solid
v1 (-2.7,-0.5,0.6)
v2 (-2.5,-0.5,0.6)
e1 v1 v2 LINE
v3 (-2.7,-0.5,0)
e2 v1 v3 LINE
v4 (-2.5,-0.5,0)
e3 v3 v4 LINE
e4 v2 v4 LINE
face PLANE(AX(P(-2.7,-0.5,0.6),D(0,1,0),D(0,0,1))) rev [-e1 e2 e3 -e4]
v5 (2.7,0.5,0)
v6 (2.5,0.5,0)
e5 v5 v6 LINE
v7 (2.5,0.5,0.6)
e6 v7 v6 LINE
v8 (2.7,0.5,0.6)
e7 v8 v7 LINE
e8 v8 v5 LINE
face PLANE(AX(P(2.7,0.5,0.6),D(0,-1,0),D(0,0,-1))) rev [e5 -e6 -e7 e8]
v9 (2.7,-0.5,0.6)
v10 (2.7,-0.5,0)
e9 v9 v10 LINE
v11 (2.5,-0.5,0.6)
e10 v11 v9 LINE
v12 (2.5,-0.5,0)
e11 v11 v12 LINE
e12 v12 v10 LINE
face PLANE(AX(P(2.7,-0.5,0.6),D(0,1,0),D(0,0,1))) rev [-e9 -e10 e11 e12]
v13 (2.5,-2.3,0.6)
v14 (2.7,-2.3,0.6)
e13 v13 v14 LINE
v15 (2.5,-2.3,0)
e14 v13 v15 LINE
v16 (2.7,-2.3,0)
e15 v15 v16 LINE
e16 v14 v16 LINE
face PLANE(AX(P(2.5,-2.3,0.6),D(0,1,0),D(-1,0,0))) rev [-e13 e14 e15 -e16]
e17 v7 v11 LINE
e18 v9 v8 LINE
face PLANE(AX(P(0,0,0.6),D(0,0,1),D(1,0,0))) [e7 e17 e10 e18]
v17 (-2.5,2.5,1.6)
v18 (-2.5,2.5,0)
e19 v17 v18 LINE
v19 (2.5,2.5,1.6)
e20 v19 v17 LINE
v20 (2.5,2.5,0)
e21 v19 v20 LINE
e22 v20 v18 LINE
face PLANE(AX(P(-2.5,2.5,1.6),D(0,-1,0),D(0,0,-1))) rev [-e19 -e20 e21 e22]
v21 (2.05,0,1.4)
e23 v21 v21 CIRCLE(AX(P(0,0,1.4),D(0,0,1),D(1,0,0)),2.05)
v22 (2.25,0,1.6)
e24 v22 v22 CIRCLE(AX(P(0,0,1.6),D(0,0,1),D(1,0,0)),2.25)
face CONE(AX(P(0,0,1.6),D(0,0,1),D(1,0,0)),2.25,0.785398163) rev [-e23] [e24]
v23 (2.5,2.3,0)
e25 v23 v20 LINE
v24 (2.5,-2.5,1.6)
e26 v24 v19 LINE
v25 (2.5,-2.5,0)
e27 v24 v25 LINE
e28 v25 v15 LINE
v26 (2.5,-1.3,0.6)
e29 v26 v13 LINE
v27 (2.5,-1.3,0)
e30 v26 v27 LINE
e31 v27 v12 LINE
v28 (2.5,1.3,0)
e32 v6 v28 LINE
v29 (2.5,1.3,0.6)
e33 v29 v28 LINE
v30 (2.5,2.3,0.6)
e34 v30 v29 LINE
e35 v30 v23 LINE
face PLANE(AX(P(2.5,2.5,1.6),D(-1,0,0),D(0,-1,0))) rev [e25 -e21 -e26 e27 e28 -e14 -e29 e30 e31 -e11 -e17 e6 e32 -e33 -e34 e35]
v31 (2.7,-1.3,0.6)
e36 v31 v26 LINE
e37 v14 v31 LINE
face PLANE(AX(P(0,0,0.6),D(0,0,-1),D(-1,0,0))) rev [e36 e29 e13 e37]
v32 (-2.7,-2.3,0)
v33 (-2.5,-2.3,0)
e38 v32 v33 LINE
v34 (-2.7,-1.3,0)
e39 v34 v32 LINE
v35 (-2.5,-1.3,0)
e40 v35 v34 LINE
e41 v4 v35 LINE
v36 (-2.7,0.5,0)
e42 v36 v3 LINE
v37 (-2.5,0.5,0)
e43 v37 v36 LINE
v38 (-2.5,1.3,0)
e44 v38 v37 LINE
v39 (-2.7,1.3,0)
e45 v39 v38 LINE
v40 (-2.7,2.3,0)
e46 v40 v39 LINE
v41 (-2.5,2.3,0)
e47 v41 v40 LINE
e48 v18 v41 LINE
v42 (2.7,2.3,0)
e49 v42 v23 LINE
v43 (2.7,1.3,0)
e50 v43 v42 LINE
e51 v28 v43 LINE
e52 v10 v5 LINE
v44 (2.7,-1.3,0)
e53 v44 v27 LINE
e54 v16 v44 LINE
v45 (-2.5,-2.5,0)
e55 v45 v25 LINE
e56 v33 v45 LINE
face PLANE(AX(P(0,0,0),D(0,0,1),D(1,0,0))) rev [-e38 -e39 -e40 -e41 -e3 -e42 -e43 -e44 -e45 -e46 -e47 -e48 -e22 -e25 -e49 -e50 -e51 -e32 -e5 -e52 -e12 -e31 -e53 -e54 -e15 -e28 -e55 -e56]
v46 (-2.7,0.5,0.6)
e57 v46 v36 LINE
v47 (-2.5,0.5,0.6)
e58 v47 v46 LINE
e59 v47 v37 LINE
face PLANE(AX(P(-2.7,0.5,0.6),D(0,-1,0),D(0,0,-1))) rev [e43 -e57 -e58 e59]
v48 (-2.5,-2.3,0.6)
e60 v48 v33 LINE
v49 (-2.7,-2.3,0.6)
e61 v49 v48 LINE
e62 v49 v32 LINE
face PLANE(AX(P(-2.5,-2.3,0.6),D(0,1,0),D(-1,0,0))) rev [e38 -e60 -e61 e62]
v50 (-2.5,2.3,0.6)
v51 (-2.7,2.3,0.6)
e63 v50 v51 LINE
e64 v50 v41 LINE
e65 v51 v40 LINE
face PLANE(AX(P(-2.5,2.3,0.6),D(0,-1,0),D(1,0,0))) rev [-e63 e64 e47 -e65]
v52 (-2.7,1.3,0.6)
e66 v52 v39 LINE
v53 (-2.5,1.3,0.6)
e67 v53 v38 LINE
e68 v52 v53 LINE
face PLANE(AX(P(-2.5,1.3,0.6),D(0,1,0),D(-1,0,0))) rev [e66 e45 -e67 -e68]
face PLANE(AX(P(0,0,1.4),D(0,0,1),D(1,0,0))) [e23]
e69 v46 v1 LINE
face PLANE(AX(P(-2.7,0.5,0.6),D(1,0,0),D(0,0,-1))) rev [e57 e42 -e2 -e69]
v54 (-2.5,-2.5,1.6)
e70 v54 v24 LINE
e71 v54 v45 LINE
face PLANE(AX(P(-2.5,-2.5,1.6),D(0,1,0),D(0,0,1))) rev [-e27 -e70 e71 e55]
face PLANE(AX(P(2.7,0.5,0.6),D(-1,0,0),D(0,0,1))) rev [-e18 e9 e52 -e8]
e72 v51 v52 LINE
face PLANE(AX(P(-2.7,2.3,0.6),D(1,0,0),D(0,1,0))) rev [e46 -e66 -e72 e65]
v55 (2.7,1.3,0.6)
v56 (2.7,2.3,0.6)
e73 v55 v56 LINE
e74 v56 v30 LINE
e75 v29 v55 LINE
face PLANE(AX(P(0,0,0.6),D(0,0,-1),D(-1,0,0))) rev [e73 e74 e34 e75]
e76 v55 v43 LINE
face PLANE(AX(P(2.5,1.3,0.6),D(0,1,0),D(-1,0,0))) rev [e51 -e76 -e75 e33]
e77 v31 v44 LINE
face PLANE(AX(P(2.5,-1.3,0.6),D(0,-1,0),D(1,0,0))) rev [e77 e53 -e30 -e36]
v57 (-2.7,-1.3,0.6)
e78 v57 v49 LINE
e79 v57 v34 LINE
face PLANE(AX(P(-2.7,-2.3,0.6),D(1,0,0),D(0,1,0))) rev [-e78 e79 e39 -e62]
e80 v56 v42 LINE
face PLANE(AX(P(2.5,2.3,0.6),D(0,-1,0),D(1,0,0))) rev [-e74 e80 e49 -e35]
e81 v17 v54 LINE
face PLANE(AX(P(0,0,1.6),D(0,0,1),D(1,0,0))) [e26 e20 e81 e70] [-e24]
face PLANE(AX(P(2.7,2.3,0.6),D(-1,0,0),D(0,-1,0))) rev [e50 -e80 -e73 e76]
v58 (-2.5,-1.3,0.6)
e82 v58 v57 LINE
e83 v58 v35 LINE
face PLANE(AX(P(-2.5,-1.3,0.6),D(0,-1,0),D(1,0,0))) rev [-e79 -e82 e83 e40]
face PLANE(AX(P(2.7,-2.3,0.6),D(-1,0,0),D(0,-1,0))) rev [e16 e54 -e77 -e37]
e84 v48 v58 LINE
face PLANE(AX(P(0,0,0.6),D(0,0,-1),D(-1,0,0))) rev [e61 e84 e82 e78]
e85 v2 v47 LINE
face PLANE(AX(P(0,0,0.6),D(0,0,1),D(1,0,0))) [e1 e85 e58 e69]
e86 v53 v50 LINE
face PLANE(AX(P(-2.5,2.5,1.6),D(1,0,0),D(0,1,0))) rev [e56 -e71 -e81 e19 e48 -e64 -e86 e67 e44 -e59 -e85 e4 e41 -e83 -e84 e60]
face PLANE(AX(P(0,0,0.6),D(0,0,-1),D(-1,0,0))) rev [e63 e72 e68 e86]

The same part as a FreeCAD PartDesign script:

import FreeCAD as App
import Part
import Sketcher

V = App.Vector
Q = App.Units.Quantity


def faces_at(feature, points):
    """Names of the faces that lie closest to the given points."""
    faces = feature.Shape.Faces
    near = lambda p: min(range(len(faces)), key=lambda i: faces[i].distToShape(Part.Vertex(*p))[0])
    return sorted({f"Face{near(p) + 1}" for p in points})

doc = App.newDocument("Part")
body = doc.addObject("PartDesign::Body", "Body")

# Sketch on XY plane
sketch1 = doc.addObject("Sketcher::SketchObject", "Sketch")
body.addObject(sketch1)
sketch1.AttachmentSupport = (doc.XY_Plane, [""])
sketch1.MapMode = "FlatFace"
sketch1.addGeometry([
    Part.LineSegment(V(-2, 2, 0), V(-2, -2, 0)),
    Part.LineSegment(V(-2, -2, 0), V(2, -2, 0)),
    Part.LineSegment(V(2, -2, 0), V(2, 2, 0)),
    Part.LineSegment(V(2, 2, 0), V(-2, 2, 0)),
], False)
sketch1.addConstraint([
    Sketcher.Constraint("Coincident", 0, 2, 1, 1),
    Sketcher.Constraint("Coincident", 1, 2, 2, 1),
    Sketcher.Constraint("Coincident", 2, 2, 3, 1),
    Sketcher.Constraint("Coincident", 3, 2, 0, 1),
    Sketcher.Constraint("Vertical", 0),
    Sketcher.Constraint("Horizontal", 1),
    Sketcher.Constraint("Vertical", 2),
    Sketcher.Constraint("Horizontal", 3),
    Sketcher.Constraint("Symmetric", 0, 2, 2, 2, -1, 1),
    Sketcher.Constraint("Equal", 3, 0),
    Sketcher.Constraint("DistanceX", 1, 1, 1, 2, Q("5 mm")),
])
pad1 = doc.addObject("PartDesign::Pad", "Pad")
body.addObject(pad1)
pad1.Profile = sketch1
pad1.Length = 1.6
body2 = doc.addObject("PartDesign::Body", "Body001")

# Sketch on XY plane
sketch2 = doc.addObject("Sketcher::SketchObject", "Sketch001")
body2.addObject(sketch2)
sketch2.AttachmentSupport = (doc.getObject("XY_Plane001"), [""])
sketch2.MapMode = "FlatFace"
sketch2.AttachmentOffset = App.Placement(V(0, 0, 1.6), App.Rotation())
sketch2.addGeometry(Part.Circle(V(0, 0, 0), V(0, 0, 1), 2.2), False)
sketch2.addConstraint([
    Sketcher.Constraint("Coincident", 0, 3, -1, 1),
    Sketcher.Constraint("Diameter", 0, Q("4.5 mm")),
])
pad2 = doc.addObject("PartDesign::Pad", "Pad001")
body2.addObject(pad2)
pad2.Profile = sketch2
pad2.Length = 0.2
pad2.Reversed = True
doc.recompute()

datumplane = doc.addObject("PartDesign::Plane", "DatumPlane")
body2.addObject(datumplane)
datumplane.AttachmentSupport = (doc.getObject("XY_Plane001"), [""])
datumplane.MapMode = "FlatFace"
datumplane.AttachmentOffset = App.Placement(V(0, 0, 1.6), App.Rotation())
draft = doc.addObject("PartDesign::Draft", "Draft")
body2.addObject(draft)
draft.Base = (pad2, faces_at(pad2, [(-2.25, 0, 1.5)]))
draft.NeutralPlane = (datumplane, [""])
draft.Angle = 45
draft.Reversed = True
doc.recompute()

boolean = doc.addObject("PartDesign::Boolean", "Boolean")
body.addObject(boolean)
boolean.Type = "Cut"
boolean.addObjects([body2])

# Sketch on XY plane
sketch3 = doc.addObject("Sketcher::SketchObject", "Sketch002")
body.addObject(sketch3)
sketch3.AttachmentSupport = (doc.XY_Plane, [""])
sketch3.MapMode = "FlatFace"
sketch3.addGeometry([
    Part.LineSegment(V(-2.7, 2.3, 0), V(-2.7, 1.3, 0)),  # 0
    Part.LineSegment(V(-2.7, 1.3, 0), V(-2.5, 1.3, 0)),  # 1
    Part.LineSegment(V(-2.5, 1.3, 0), V(-2.5, 2.3, 0)),  # 2
    Part.LineSegment(V(-2.5, 2.3, 0), V(-2.7, 2.3, 0)),  # 3
    Part.LineSegment(V(2.5, 2.3, 0), V(2.5, 1.3, 0)),  # 4
    Part.LineSegment(V(2.5, 1.3, 0), V(2.7, 1.3, 0)),  # 5
    Part.LineSegment(V(2.7, 1.3, 0), V(2.7, 2.3, 0)),  # 6
    Part.LineSegment(V(2.7, 2.3, 0), V(2.5, 2.3, 0)),  # 7
    Part.LineSegment(V(2.5, -1.3, 0), V(2.5, -2.3, 0)),  # 8
    Part.LineSegment(V(2.5, -2.3, 0), V(2.7, -2.3, 0)),  # 9
    Part.LineSegment(V(2.7, -2.3, 0), V(2.7, -1.3, 0)),  # 10
    Part.LineSegment(V(2.7, -1.3, 0), V(2.5, -1.3, 0)),  # 11
    Part.LineSegment(V(-2.7, -1.3, 0), V(-2.7, -2.3, 0)),  # 12
    Part.LineSegment(V(-2.7, -2.3, 0), V(-2.5, -2.3, 0)),  # 13
    Part.LineSegment(V(-2.5, -2.3, 0), V(-2.5, -1.3, 0)),  # 14
    Part.LineSegment(V(-2.5, -1.3, 0), V(-2.7, -1.3, 0)),  # 15
    Part.LineSegment(V(2.5, 0.5, 0), V(2.5, -0.5, 0)),  # 16
    Part.LineSegment(V(2.5, -0.5, 0), V(2.7, -0.5, 0)),  # 17
    Part.LineSegment(V(2.7, -0.5, 0), V(2.7, 0.5, 0)),  # 18
    Part.LineSegment(V(2.7, 0.5, 0), V(2.5, 0.5, 0)),  # 19
    Part.LineSegment(V(-2.7, 0.5, 0), V(-2.7, -0.5, 0)),  # 20
    Part.LineSegment(V(-2.7, -0.5, 0), V(-2.5, -0.5, 0)),  # 21
    Part.LineSegment(V(-2.5, -0.5, 0), V(-2.5, 0.5, 0)),  # 22
    Part.LineSegment(V(-2.5, 0.5, 0), V(-2.7, 0.5, 0)),  # 23
], False)
sketch3.addConstraint([
    Sketcher.Constraint("Coincident", 0, 2, 1, 1),
    Sketcher.Constraint("Coincident", 1, 2, 2, 1),
    Sketcher.Constraint("Coincident", 2, 2, 3, 1),
    Sketcher.Constraint("Coincident", 3, 2, 0, 1),
    Sketcher.Constraint("Coincident", 4, 2, 5, 1),
    Sketcher.Constraint("Coincident", 5, 2, 6, 1),
    Sketcher.Constraint("Coincident", 6, 2, 7, 1),
    Sketcher.Constraint("Coincident", 7, 2, 4, 1),
    Sketcher.Constraint("Coincident", 8, 2, 9, 1),
    Sketcher.Constraint("Coincident", 9, 2, 10, 1),
    Sketcher.Constraint("Coincident", 10, 2, 11, 1),
    Sketcher.Constraint("Coincident", 11, 2, 8, 1),
    Sketcher.Constraint("Coincident", 12, 2, 13, 1),
    Sketcher.Constraint("Coincident", 13, 2, 14, 1),
    Sketcher.Constraint("Coincident", 14, 2, 15, 1),
    Sketcher.Constraint("Coincident", 15, 2, 12, 1),
    Sketcher.Constraint("Coincident", 16, 2, 17, 1),
    Sketcher.Constraint("Coincident", 17, 2, 18, 1),
    Sketcher.Constraint("Coincident", 18, 2, 19, 1),
    Sketcher.Constraint("Coincident", 19, 2, 16, 1),
    Sketcher.Constraint("Coincident", 20, 2, 21, 1),
    Sketcher.Constraint("Coincident", 21, 2, 22, 1),
    Sketcher.Constraint("Coincident", 22, 2, 23, 1),
    Sketcher.Constraint("Coincident", 23, 2, 20, 1),
    Sketcher.Constraint("Vertical", 0),
    Sketcher.Constraint("Horizontal", 1),
    Sketcher.Constraint("Vertical", 2),
    Sketcher.Constraint("Horizontal", 3),
    Sketcher.Constraint("Vertical", 4),
    Sketcher.Constraint("Horizontal", 5),
    Sketcher.Constraint("Vertical", 6),
    Sketcher.Constraint("Horizontal", 7),
    Sketcher.Constraint("Vertical", 8),
    Sketcher.Constraint("Horizontal", 9),
    Sketcher.Constraint("Vertical", 10),
    Sketcher.Constraint("Horizontal", 11),
    Sketcher.Constraint("Vertical", 12),
    Sketcher.Constraint("Horizontal", 13),
    Sketcher.Constraint("Vertical", 14),
    Sketcher.Constraint("Horizontal", 15),
    Sketcher.Constraint("Vertical", 16),
    Sketcher.Constraint("Horizontal", 17),
    Sketcher.Constraint("Vertical", 18),
    Sketcher.Constraint("Horizontal", 19),
    Sketcher.Constraint("Vertical", 20),
    Sketcher.Constraint("Horizontal", 21),
    Sketcher.Constraint("Vertical", 22),
    Sketcher.Constraint("Horizontal", 23),
    Sketcher.Constraint("Symmetric", 2, 2, 8, 2, -1, 1),
    Sketcher.Constraint("Symmetric", 0, 2, 10, 2, -1, 1),
    Sketcher.Constraint("Symmetric", 6, 2, 12, 2, -1, 1),
    Sketcher.Constraint("Symmetric", 4, 2, 14, 2, -1, 1),
    Sketcher.Constraint("Symmetric", 18, 2, 20, 2, -1, 1),
    Sketcher.Constraint("Symmetric", 16, 2, 22, 2, -1, 1),
    Sketcher.Constraint("Symmetric", 1, 2, 4, 2, -2),
    Sketcher.Constraint("Symmetric", 3, 2, 6, 2, -2),
    Sketcher.Constraint("Horizontal", 17, 2, 20, 2),
    Sketcher.Constraint("Vertical", 11, 2, 16, 2),
    Sketcher.Constraint("Vertical", 10, 2, 17, 2),
    Sketcher.Constraint("Equal", 14, 16),
    Sketcher.Constraint("DistanceY", 0, 2, 0, 1, Q("1 mm")),
    Sketcher.Constraint("DistanceX", 1, 1, 1, 2, Q("0.2 mm")),
    Sketcher.Constraint("DistanceX", 1, 2, 4, 2, Q("5 mm")),
    Sketcher.Constraint("DistanceY", -1, 1, 0, 2, Q("1.3 mm")),
])
pad3 = doc.addObject("PartDesign::Pad", "Pad002")
body.addObject(pad3)
pad3.Profile = sketch3
pad3.Length = 0.6

doc.recompute()
